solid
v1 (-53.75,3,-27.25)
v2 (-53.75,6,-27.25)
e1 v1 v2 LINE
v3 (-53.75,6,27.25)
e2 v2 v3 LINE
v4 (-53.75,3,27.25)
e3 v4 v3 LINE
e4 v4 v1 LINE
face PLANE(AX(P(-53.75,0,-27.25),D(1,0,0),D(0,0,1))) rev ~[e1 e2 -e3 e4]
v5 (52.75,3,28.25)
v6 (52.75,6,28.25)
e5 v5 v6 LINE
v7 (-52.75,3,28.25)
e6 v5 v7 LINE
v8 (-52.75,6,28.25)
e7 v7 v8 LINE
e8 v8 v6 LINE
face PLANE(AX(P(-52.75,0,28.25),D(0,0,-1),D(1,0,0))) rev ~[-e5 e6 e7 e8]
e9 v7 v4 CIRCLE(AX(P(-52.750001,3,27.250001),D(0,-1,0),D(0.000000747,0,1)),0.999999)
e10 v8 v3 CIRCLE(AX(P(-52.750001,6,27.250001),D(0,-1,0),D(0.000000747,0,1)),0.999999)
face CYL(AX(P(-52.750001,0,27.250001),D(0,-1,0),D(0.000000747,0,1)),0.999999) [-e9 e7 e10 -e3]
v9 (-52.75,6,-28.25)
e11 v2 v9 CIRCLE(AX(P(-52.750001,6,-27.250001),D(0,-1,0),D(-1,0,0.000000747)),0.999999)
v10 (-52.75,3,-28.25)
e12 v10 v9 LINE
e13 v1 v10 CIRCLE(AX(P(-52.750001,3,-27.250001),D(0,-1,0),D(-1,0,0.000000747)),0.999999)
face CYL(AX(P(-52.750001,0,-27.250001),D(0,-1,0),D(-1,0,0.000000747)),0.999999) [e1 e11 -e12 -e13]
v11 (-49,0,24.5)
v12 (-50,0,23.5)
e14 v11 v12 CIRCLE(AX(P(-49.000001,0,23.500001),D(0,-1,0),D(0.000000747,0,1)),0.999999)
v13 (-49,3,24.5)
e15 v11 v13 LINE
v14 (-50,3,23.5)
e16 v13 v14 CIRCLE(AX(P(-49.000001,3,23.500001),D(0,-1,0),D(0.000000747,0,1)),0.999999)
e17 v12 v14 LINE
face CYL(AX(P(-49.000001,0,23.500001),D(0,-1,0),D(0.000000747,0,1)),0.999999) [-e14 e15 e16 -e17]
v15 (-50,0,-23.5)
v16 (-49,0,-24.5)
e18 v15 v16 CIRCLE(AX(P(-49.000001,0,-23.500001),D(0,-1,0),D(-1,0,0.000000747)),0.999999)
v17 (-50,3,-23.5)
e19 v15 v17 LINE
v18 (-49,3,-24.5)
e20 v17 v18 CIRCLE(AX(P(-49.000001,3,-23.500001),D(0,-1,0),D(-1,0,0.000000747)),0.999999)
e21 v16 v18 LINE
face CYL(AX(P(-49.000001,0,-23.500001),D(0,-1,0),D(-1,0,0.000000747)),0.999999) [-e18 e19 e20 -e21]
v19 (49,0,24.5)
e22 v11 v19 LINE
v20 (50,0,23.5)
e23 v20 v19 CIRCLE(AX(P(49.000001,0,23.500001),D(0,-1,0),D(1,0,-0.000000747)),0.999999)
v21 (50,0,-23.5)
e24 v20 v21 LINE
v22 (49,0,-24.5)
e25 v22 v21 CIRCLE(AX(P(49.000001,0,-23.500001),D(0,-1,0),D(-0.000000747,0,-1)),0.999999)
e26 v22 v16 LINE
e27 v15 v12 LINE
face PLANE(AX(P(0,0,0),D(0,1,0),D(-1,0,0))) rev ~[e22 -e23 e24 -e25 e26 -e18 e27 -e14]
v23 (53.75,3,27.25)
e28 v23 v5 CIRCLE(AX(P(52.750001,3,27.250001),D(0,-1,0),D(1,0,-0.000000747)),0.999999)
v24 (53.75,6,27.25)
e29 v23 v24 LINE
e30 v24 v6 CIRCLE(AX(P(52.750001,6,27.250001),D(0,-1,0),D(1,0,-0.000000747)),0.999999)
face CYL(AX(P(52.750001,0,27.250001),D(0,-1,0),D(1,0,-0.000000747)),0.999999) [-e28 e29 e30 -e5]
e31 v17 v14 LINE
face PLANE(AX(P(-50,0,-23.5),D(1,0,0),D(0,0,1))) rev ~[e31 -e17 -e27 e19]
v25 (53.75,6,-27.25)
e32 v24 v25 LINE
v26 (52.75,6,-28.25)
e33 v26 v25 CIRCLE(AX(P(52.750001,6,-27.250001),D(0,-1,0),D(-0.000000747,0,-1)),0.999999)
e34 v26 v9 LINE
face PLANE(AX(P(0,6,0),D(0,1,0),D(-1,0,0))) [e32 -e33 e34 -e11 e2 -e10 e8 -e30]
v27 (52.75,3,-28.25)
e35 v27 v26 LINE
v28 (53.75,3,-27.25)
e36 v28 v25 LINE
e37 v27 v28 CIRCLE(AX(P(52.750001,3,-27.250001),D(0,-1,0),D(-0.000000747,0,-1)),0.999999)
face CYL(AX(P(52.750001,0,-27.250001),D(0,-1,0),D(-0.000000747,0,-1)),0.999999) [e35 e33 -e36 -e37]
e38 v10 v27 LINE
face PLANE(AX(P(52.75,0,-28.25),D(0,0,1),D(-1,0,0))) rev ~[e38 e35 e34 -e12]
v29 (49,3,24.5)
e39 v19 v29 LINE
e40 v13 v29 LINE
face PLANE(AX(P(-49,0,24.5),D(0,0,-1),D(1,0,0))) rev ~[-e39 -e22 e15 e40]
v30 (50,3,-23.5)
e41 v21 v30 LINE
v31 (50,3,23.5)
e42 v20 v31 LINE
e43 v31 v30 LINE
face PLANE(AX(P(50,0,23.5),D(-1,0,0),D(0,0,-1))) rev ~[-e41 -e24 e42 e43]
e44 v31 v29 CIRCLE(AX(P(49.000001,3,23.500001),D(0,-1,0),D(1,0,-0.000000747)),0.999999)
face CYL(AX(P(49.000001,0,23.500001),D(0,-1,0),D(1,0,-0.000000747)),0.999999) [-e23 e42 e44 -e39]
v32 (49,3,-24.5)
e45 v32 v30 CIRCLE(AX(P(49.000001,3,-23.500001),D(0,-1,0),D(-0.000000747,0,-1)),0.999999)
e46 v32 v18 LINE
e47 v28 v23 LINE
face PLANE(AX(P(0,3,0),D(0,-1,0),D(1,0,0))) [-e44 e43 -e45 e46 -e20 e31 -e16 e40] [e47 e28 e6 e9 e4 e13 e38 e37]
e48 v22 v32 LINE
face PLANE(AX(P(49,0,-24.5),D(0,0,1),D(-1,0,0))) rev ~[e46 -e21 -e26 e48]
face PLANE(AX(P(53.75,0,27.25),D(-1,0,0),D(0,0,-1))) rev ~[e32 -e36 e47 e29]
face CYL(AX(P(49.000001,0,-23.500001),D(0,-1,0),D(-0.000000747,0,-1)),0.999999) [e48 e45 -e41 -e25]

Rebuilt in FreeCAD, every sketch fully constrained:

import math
import FreeCAD as App
import Part
import Sketcher
from FreeCAD import Vector


def add_polygon(sketch, points):
    """Adds a closed chain of lines whose ends are joined by coincident constraints."""
    first, n = sketch.GeometryCount, len(points)
    for a, b in zip(points, points[1:] + points[:1]):
        sketch.addGeometry(Part.LineSegment(App.Vector(*a, 0), App.Vector(*b, 0)), False)
    for i in range(n):
        sketch.addConstraint(Sketcher.Constraint("Coincident", first + i, 2, first + (i + 1) % n, 1))

doc = App.newDocument("Part")
body = doc.addObject("PartDesign::Body", "Body")

# Sketch on XZ plane
sketch1 = body.newObject("Sketcher::SketchObject", "Sketch")
sketch1.AttachmentSupport = (doc.getObject("XZ_Plane"), [""])
sketch1.MapMode = "FlatFace"
sketch1.addGeometry([
    Part.LineSegment(Vector(52.75, 28.25, 0), Vector(-52.75, 28.25, 0)),  # 0
    Part.ArcOfCircle(Part.Circle(Vector(-52.750001, 27.250001, 0), Vector(0, 0, 1), 0.999999), math.radians(89.999957), math.radians(180.000043)),  # 1
    Part.LineSegment(Vector(-53.75, 27.25, 0), Vector(-53.75, -27.25, 0)),  # 2
    Part.ArcOfCircle(Part.Circle(Vector(-52.750001, -27.250001, 0), Vector(0, 0, 1), 0.999999), math.radians(179.999957), math.radians(270.000043)),  # 3
    Part.LineSegment(Vector(-52.75, -28.25, 0), Vector(52.75, -28.25, 0)),  # 4
    Part.ArcOfCircle(Part.Circle(Vector(52.750001, -27.250001, 0), Vector(0, 0, 1), 0.999999), math.radians(-90.000043), math.radians(0.000043)),  # 5
    Part.LineSegment(Vector(53.75, -27.25, 0), Vector(53.75, 27.25, 0)),  # 6
    Part.ArcOfCircle(Part.Circle(Vector(52.750001, 27.250001, 0), Vector(0, 0, 1), 0.999999), math.radians(-0.000043), math.radians(90.000043)),  # 7
], False)
sketch1.addConstraint([
    Sketcher.Constraint("Tangent", 0, 2, 1, 1),
    Sketcher.Constraint("Tangent", 1, 2, 2, 1),
    Sketcher.Constraint("Tangent", 2, 2, 3, 1),
    Sketcher.Constraint("Tangent", 3, 2, 4, 1),
    Sketcher.Constraint("Tangent", 4, 2, 5, 1),
    Sketcher.Constraint("Tangent", 5, 2, 6, 1),
    Sketcher.Constraint("Tangent", 6, 2, 7, 1),
    Sketcher.Constraint("Tangent", 7, 2, 0, 1),
    Sketcher.Constraint("Horizontal", 0),
    Sketcher.Constraint("Vertical", 2),
    Sketcher.Constraint("Horizontal", 4),
    Sketcher.Constraint("Vertical", 6),
    Sketcher.Constraint("Equal", 1, 3),
    Sketcher.Constraint("Equal", 3, 5),
    Sketcher.Constraint("Equal", 5, 7),
    Sketcher.Constraint("Symmetric", 1, 3, 5, 3, -1, 1),
    Sketcher.Constraint("Radius", 1, 0.999999),
    Sketcher.Constraint("DistanceX", 0, 2, 0, 1, 105.5),
    Sketcher.Constraint("DistanceY", 2, 2, 2, 1, 54.5),
])
pad1 = body.newObject("PartDesign::Pad", "Pad")
pad1.Profile = sketch1
pad1.Length = 6
pad1.Reversed = True

# Sketch on XZ plane
sketch2 = body.newObject("Sketcher::SketchObject", "Sketch001")
sketch2.AttachmentSupport = (doc.getObject("XZ_Plane"), [""])
sketch2.MapMode = "FlatFace"
add_polygon(sketch2, [(-75, 36.75), (-75, -36.75), (75, -36.75), (75, 36.75)])  # lines 0-3
sketch2.addGeometry(Part.ArcOfCircle(Part.Circle(Vector(-49.000001, 23.500001, 0), Vector(0, 0, 1), 0.999999), math.radians(89.999957), math.radians(180.000043)), False)  # 4
sketch2.addGeometry(Part.LineSegment(Vector(-49, 24.5, 0), Vector(49, 24.5, 0)), False)  # 5
sketch2.addGeometry(Part.ArcOfCircle(Part.Circle(Vector(49.000001, 23.500001, 0), Vector(0, 0, 1), 0.999999), math.radians(-0.000043), math.radians(90.000043)), False)  # 6
sketch2.addGeometry(Part.LineSegment(Vector(50, 23.5, 0), Vector(50, -23.5, 0)), False)  # 7
sketch2.addGeometry(Part.ArcOfCircle(Part.Circle(Vector(49.000001, -23.500001, 0), Vector(0, 0, 1), 0.999999), math.radians(-90.000043), math.radians(0.000043)), False)  # 8
sketch2.addGeometry(Part.LineSegment(Vector(49, -24.5, 0), Vector(-49, -24.5, 0)), False)  # 9
sketch2.addGeometry(Part.ArcOfCircle(Part.Circle(Vector(-49.000001, -23.500001, 0), Vector(0, 0, 1), 0.999999), math.radians(179.999957), math.radians(270.000043)), False)  # 10
sketch2.addGeometry(Part.LineSegment(Vector(-50, -23.5, 0), Vector(-50, 23.5, 0)), False)  # 11
sketch2.addConstraint([
    Sketcher.Constraint("Tangent", 4, 1, 5, 1),
    Sketcher.Constraint("Tangent", 5, 2, 6, 2),
    Sketcher.Constraint("Tangent", 6, 1, 7, 1),
    Sketcher.Constraint("Tangent", 7, 2, 8, 2),
    Sketcher.Constraint("Tangent", 8, 1, 9, 1),
    Sketcher.Constraint("Tangent", 9, 2, 10, 2),
    Sketcher.Constraint("Tangent", 10, 1, 11, 1),
    Sketcher.Constraint("Tangent", 11, 2, 4, 2),
    Sketcher.Constraint("Vertical", 0),
    Sketcher.Constraint("Horizontal", 1),
    Sketcher.Constraint("Vertical", 2),
    Sketcher.Constraint("Horizontal", 3),
    Sketcher.Constraint("Horizontal", 5),
    Sketcher.Constraint("Vertical", 7),
    Sketcher.Constraint("Horizontal", 9),
    Sketcher.Constraint("Vertical", 11),
    Sketcher.Constraint("Equal", 4, 6),
    Sketcher.Constraint("Equal", 6, 8),
    Sketcher.Constraint("Equal", 8, 10),
    Sketcher.Constraint("Symmetric", 4, 3, 8, 3, -1, 1),
    Sketcher.Constraint("Symmetric", 0, 2, 2, 2, -1, 1),
    Sketcher.Constraint("Radius", 4, 0.999999),
    Sketcher.Constraint("DistanceX", 1, 1, 1, 2, 150.0),
    Sketcher.Constraint("DistanceX", 5, 1, 5, 2, 98.0),
    Sketcher.Constraint("DistanceY", 7, 2, 7, 1, 47.0),
    Sketcher.Constraint("DistanceY", 0, 2, 0, 1, 73.5),
])
pocket1 = body.newObject("PartDesign::Pocket", "Pocket")
pocket1.Profile = sketch2
pocket1.Length = 3

doc.recompute()
